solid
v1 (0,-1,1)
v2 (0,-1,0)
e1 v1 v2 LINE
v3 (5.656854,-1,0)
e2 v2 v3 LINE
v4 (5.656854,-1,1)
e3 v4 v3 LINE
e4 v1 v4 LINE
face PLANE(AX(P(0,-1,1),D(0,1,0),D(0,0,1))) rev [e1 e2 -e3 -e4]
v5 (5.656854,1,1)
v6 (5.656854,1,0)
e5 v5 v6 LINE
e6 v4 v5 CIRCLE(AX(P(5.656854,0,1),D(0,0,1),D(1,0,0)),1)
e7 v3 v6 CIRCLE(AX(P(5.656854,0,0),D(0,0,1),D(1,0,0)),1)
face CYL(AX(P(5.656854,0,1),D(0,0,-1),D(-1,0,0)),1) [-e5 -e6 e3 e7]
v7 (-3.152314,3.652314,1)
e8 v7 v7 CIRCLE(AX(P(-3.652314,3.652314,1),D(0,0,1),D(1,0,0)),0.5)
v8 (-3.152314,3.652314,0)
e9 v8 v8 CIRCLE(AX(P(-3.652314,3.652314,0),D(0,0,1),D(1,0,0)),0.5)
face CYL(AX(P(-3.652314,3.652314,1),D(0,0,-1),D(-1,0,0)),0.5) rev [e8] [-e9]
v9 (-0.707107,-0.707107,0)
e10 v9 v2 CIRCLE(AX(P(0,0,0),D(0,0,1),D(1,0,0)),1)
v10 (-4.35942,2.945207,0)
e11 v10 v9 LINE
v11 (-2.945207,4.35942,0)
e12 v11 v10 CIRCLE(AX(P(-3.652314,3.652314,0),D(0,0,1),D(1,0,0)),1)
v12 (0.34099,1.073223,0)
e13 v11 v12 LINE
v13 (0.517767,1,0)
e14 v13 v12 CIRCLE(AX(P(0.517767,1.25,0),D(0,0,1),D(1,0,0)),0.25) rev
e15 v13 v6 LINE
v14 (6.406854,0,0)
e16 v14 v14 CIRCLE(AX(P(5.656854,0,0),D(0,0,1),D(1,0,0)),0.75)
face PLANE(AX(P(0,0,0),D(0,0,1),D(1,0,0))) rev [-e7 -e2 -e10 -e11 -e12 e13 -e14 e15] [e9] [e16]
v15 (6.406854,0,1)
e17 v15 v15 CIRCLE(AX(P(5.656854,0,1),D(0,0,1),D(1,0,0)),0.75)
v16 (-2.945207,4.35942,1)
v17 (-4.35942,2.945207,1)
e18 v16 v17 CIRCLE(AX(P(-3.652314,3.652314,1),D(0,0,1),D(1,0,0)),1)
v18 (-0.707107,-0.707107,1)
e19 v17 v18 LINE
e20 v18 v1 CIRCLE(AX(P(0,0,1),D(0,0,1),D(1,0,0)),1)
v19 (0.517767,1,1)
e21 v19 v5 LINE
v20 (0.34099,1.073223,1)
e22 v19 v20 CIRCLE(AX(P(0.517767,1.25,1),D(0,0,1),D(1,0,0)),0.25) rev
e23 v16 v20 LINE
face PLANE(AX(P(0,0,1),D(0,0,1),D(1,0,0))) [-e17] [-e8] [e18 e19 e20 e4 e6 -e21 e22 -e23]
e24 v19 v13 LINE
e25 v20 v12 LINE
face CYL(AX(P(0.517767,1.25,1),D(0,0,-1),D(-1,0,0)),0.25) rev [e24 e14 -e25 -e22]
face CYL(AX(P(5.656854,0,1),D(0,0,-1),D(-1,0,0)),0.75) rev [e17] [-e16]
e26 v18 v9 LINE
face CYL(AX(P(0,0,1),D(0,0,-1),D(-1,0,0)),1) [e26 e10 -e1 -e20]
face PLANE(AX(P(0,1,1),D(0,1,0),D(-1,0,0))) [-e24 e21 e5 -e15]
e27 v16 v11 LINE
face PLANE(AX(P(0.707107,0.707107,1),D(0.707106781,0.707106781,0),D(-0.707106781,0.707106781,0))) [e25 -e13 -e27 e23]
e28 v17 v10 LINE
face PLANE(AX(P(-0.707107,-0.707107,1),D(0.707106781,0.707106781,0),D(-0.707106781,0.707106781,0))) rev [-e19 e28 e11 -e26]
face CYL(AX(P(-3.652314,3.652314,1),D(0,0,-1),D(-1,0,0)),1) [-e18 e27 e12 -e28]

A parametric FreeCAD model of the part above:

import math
import FreeCAD as App
import Part
import Sketcher
from FreeCAD import Vector
Q = App.Units.Quantity

doc = App.newDocument("Part")
body = doc.addObject("PartDesign::Body", "Body")

sketch1 = body.newObject("Sketcher::SketchObject", "Sketch")
sketch1.AttachmentSupport = (doc.getObject("XY_Plane"), [""])
sketch1.MapMode = "FlatFace"
sketch1.addGeometry(Part.LineSegment(Vector(5.66, 1, 0), Vector(0.52, 1, 0)), False)
sketch1.addGeometry(Part.ArcOfCircle(Part.Circle(Vector(0.52, 1.25, 0), Vector(0, 0, 1), 0.25), math.radians(-135), math.radians(-90)), False)
sketch1.addGeometry(Part.LineSegment(Vector(0.34, 1.07, 0), Vector(-2.95, 4.36, 0)), False)
sketch1.addGeometry(Part.ArcOfCircle(Part.Circle(Vector(-3.65, 3.65, 0), Vector(0, 0, 1), 1), math.radians(45), math.radians(225)), False)
sketch1.addGeometry(Part.LineSegment(Vector(-4.36, 2.95, 0), Vector(-0.71, -0.71, 0)), False)
sketch1.addGeometry(Part.ArcOfCircle(Part.Circle(Vector(0, 0, 0), Vector(0, 0, 1), 1), math.radians(-135), math.radians(-90)), False)
sketch1.addGeometry(Part.LineSegment(Vector(0, -1, 0), Vector(5.66, -1, 0)), False)
sketch1.addGeometry(Part.ArcOfCircle(Part.Circle(Vector(5.66, 0, 0), Vector(0, 0, 1), 1), math.radians(-90), math.radians(90)), False)
sketch1.addGeometry(Part.Circle(Vector(5.66, 0, 0), Vector(0, 0, 1), 0.75), False)
sketch1.addGeometry(Part.Circle(Vector(-3.65, 3.65, 0), Vector(0, 0, 1), 0.5), False)
sketch1.addConstraint(Sketcher.Constraint("Tangent", 0, 2, 1, 2))
sketch1.addConstraint(Sketcher.Constraint("Tangent", 1, 1, 2, 1))
sketch1.addConstraint(Sketcher.Constraint("Tangent", 2, 2, 3, 1))
sketch1.addConstraint(Sketcher.Constraint("Tangent", 3, 2, 4, 1))
sketch1.addConstraint(Sketcher.Constraint("Tangent", 4, 2, 5, 1))
sketch1.addConstraint(Sketcher.Constraint("Tangent", 5, 2, 6, 1))
sketch1.addConstraint(Sketcher.Constraint("Tangent", 6, 2, 7, 1))
sketch1.addConstraint(Sketcher.Constraint("Tangent", 7, 2, 0, 1))
sketch1.addConstraint(Sketcher.Constraint("Horizontal", 0))
sketch1.addConstraint(Sketcher.Constraint("Horizontal", 6))
sketch1.addConstraint(Sketcher.Constraint("Coincident", 5, 3, -1, 1))
sketch1.addConstraint(Sketcher.Constraint("Coincident", 8, 3, 7, 3))
sketch1.addConstraint(Sketcher.Constraint("Coincident", 9, 3, 3, 3))
sketch1.addConstraint(Sketcher.Constraint("Equal", 3, 5))
sketch1.addConstraint(Sketcher.Constraint("Equal", 5, 7))
sketch1.addConstraint(Sketcher.Constraint("Parallel", 2, 4))
sketch1.addConstraint(Sketcher.Constraint("Diameter", 9, 1.0))
sketch1.addConstraint(Sketcher.Constraint("Radius", 3, 1.0))
sketch1.addConstraint(Sketcher.Constraint("Diameter", 8, 1.5))
sketch1.addConstraint(Sketcher.Constraint("Angle", 2, Q("135 deg")))
sketch1.addConstraint(Sketcher.Constraint("Radius", 1, 0.25))
sketch1.addConstraint(Sketcher.Constraint("Distance", 4, 5.165151))
sketch1.addConstraint(Sketcher.Constraint("DistanceX", 0, 2, 0, 1, 5.139087))
pad1 = body.newObject("PartDesign::Pad", "Pad")
pad1.Profile = sketch1
pad1.Length = 1

doc.recompute()
